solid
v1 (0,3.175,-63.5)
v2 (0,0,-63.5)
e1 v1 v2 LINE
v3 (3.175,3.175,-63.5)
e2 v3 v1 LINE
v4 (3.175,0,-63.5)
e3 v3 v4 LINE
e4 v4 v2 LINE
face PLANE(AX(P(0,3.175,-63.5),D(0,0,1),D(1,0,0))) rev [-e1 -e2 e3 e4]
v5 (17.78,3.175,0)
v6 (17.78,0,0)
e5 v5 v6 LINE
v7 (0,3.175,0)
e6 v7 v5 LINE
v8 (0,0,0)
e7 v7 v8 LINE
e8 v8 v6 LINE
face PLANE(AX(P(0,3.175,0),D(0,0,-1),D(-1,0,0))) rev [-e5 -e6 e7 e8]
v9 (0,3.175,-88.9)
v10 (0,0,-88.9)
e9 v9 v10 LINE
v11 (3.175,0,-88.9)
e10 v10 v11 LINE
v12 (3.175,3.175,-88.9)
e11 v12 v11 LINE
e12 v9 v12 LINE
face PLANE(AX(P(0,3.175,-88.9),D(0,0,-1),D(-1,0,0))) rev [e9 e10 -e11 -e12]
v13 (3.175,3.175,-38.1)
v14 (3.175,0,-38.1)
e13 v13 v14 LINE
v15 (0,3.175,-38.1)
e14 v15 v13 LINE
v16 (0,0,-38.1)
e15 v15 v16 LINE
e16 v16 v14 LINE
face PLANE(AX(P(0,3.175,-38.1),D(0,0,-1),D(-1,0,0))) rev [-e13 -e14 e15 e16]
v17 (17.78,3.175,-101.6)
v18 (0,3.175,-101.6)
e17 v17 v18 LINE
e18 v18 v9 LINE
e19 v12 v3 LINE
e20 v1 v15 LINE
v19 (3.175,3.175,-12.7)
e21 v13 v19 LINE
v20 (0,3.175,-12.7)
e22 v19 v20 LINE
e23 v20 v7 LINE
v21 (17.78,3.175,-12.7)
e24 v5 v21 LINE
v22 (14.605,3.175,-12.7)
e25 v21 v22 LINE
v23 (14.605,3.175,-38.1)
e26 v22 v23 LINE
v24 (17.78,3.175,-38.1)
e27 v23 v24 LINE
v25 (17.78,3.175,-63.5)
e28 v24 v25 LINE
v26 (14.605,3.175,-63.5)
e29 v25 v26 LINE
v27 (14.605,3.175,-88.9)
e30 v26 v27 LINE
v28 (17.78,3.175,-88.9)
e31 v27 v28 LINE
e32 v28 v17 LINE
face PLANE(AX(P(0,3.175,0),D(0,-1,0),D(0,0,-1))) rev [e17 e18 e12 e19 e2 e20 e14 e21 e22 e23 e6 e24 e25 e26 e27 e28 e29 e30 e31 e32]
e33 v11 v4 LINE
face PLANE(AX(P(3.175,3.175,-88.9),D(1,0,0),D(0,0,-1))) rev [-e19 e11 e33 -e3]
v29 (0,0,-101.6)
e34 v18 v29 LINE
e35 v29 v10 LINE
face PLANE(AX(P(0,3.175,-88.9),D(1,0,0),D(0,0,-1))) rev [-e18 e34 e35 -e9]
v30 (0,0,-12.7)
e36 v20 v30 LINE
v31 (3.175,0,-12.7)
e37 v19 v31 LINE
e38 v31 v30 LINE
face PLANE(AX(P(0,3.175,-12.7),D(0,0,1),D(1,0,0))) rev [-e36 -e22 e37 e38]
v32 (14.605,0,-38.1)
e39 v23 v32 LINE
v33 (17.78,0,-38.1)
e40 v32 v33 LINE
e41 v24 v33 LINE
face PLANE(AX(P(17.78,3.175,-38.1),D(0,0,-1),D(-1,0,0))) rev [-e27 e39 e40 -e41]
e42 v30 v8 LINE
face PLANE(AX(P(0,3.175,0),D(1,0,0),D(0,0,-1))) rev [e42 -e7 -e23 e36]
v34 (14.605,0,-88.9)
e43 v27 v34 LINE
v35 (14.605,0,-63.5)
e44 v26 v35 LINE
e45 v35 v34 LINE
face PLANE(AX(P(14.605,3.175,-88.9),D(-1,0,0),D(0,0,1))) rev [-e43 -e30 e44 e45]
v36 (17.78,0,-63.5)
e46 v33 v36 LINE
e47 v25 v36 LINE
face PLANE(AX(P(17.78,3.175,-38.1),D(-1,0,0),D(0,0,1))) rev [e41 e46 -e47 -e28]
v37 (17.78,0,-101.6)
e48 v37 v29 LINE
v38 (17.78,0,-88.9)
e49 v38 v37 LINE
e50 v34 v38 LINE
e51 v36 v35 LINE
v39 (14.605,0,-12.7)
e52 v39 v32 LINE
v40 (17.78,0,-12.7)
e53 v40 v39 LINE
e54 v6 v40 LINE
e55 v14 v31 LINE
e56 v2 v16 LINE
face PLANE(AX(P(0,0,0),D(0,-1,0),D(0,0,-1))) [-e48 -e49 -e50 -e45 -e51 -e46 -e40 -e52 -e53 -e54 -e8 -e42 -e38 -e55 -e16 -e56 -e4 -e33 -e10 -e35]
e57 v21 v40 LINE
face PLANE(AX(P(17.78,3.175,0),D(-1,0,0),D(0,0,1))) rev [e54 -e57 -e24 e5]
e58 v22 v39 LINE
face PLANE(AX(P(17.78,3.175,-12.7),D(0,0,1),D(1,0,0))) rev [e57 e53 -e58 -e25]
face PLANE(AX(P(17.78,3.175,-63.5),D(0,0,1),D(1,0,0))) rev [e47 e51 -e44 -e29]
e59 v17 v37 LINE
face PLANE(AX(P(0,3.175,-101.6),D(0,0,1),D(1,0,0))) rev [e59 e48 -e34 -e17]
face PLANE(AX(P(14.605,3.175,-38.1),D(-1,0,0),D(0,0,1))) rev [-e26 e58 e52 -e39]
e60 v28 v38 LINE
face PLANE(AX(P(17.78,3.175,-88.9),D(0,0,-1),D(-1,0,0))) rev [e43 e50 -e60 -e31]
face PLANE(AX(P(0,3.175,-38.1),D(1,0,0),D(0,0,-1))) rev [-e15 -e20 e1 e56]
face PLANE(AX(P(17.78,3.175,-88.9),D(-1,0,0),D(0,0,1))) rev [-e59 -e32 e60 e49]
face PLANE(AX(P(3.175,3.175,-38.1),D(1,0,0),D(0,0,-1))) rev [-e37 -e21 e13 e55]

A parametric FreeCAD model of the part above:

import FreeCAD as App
import Part
import Sketcher
from FreeCAD import Vector
Q = App.Units.Quantity

doc = App.newDocument("Part")
body = doc.addObject("PartDesign::Body", "Body")

# Sketch on XZ plane
sketch1 = body.newObject("Sketcher::SketchObject", "Sketch")
sketch1.AttachmentSupport = (doc.getObject("XZ_Plane"), [""])
sketch1.MapMode = "FlatFace"
sketch1.addGeometry([
    Part.LineSegment(Vector(0, -101.6, 0), Vector(0, -88.9, 0)),  # 0
    Part.LineSegment(Vector(0, -88.9, 0), Vector(3.2, -88.9, 0)),  # 1
    Part.LineSegment(Vector(3.2, -88.9, 0), Vector(3.2, -63.5, 0)),  # 2
    Part.LineSegment(Vector(3.2, -63.5, 0), Vector(0, -63.5, 0)),  # 3
    Part.LineSegment(Vector(0, -63.5, 0), Vector(0, -38.1, 0)),  # 4
    Part.LineSegment(Vector(0, -38.1, 0), Vector(3.2, -38.1, 0)),  # 5
    Part.LineSegment(Vector(3.2, -38.1, 0), Vector(3.2, -12.7, 0)),  # 6
    Part.LineSegment(Vector(3.2, -12.7, 0), Vector(0, -12.7, 0)),  # 7
    Part.LineSegment(Vector(0, -12.7, 0), Vector(0, 0, 0)),  # 8
    Part.LineSegment(Vector(0, 0, 0), Vector(17.8, 0, 0)),  # 9
    Part.LineSegment(Vector(17.8, 0, 0), Vector(17.8, -12.7, 0)),  # 10
    Part.LineSegment(Vector(17.8, -12.7, 0), Vector(14.6, -12.7, 0)),  # 11
    Part.LineSegment(Vector(14.6, -12.7, 0), Vector(14.6, -38.1, 0)),  # 12
    Part.LineSegment(Vector(14.6, -38.1, 0), Vector(17.8, -38.1, 0)),  # 13
    Part.LineSegment(Vector(17.8, -38.1, 0), Vector(17.8, -63.5, 0)),  # 14
    Part.LineSegment(Vector(17.8, -63.5, 0), Vector(14.6, -63.5, 0)),  # 15
    Part.LineSegment(Vector(14.6, -63.5, 0), Vector(14.6, -88.9, 0)),  # 16
    Part.LineSegment(Vector(14.6, -88.9, 0), Vector(17.8, -88.9, 0)),  # 17
    Part.LineSegment(Vector(17.8, -88.9, 0), Vector(17.8, -101.6, 0)),  # 18
    Part.LineSegment(Vector(17.8, -101.6, 0), Vector(0, -101.6, 0)),  # 19
], False)
sketch1.addConstraint([
    Sketcher.Constraint("Coincident", 0, 2, 1, 1),
    Sketcher.Constraint("Coincident", 1, 2, 2, 1),
    Sketcher.Constraint("Coincident", 2, 2, 3, 1),
    Sketcher.Constraint("Coincident", 3, 2, 4, 1),
    Sketcher.Constraint("Coincident", 4, 2, 5, 1),
    Sketcher.Constraint("Coincident", 5, 2, 6, 1),
    Sketcher.Constraint("Coincident", 6, 2, 7, 1),
    Sketcher.Constraint("Coincident", 7, 2, 8, 1),
    Sketcher.Constraint("Coincident", 8, 2, 9, 1),
    Sketcher.Constraint("Coincident", 9, 2, 10, 1),
    Sketcher.Constraint("Coincident", 10, 2, 11, 1),
    Sketcher.Constraint("Coincident", 11, 2, 12, 1),
    Sketcher.Constraint("Coincident", 12, 2, 13, 1),
    Sketcher.Constraint("Coincident", 13, 2, 14, 1),
    Sketcher.Constraint("Coincident", 14, 2, 15, 1),
    Sketcher.Constraint("Coincident", 15, 2, 16, 1),
    Sketcher.Constraint("Coincident", 16, 2, 17, 1),
    Sketcher.Constraint("Coincident", 17, 2, 18, 1),
    Sketcher.Constraint("Coincident", 18, 2, 19, 1),
    Sketcher.Constraint("Coincident", 19, 2, 0, 1),
    Sketcher.Constraint("Vertical", 0),
    Sketcher.Constraint("Horizontal", 1),
    Sketcher.Constraint("Vertical", 2),
    Sketcher.Constraint("Horizontal", 3),
    Sketcher.Constraint("Vertical", 4),
    Sketcher.Constraint("Horizontal", 5),
    Sketcher.Constraint("Vertical", 6),
    Sketcher.Constraint("Horizontal", 7),
    Sketcher.Constraint("Vertical", 8),
    Sketcher.Constraint("Horizontal", 9),
    Sketcher.Constraint("Vertical", 10),
    Sketcher.Constraint("Horizontal", 11),
    Sketcher.Constraint("Vertical", 12),
    Sketcher.Constraint("Horizontal", 13),
    Sketcher.Constraint("Vertical", 14),
    Sketcher.Constraint("Horizontal", 15),
    Sketcher.Constraint("Vertical", 16),
    Sketcher.Constraint("Horizontal", 17),
    Sketcher.Constraint("Vertical", 18),
    Sketcher.Constraint("Horizontal", 19),
    Sketcher.Constraint("Coincident", 8, 2, -1, 1),
    Sketcher.Constraint("PointOnObject", 0, 2, -2),
    Sketcher.Constraint("PointOnObject", 3, 2, -2),
    Sketcher.Constraint("Horizontal", 7, 2, 10, 2),
    Sketcher.Constraint("Horizontal", 5, 2, 12, 2),
    Sketcher.Constraint("Horizontal", 3, 2, 14, 2),
    Sketcher.Constraint("Horizontal", 1, 2, 16, 2),
    Sketcher.Constraint("Vertical", 2, 2, 5, 2),
    Sketcher.Constraint("Vertical", 10, 2, 13, 2),
    Sketcher.Constraint("Vertical", 12, 2, 15, 2),
    Sketcher.Constraint("Vertical", 14, 2, 17, 2),
    Sketcher.Constraint("Equal", 7, 11),
    Sketcher.Constraint("Equal", 2, 4),
    Sketcher.Constraint("Equal", 4, 6),
    Sketcher.Constraint("Equal", 0, 8),
    Sketcher.Constraint("DistanceY", 2, 1, 2, 2, Q("1 in")),
    Sketcher.Constraint("DistanceX", 9, 1, 9, 2, Q("0.7 in")),
    Sketcher.Constraint("DistanceY", 0, 1, 0, 2, Q("0.5 in")),
    Sketcher.Constraint("DistanceX", 1, 1, 1, 2, Q("0.125 in")),
])
pad1 = body.newObject("PartDesign::Pad", "Pad")
pad1.Profile = sketch1
pad1.Length = Q("0.125 in")
pad1.Reversed = True

doc.recompute()
